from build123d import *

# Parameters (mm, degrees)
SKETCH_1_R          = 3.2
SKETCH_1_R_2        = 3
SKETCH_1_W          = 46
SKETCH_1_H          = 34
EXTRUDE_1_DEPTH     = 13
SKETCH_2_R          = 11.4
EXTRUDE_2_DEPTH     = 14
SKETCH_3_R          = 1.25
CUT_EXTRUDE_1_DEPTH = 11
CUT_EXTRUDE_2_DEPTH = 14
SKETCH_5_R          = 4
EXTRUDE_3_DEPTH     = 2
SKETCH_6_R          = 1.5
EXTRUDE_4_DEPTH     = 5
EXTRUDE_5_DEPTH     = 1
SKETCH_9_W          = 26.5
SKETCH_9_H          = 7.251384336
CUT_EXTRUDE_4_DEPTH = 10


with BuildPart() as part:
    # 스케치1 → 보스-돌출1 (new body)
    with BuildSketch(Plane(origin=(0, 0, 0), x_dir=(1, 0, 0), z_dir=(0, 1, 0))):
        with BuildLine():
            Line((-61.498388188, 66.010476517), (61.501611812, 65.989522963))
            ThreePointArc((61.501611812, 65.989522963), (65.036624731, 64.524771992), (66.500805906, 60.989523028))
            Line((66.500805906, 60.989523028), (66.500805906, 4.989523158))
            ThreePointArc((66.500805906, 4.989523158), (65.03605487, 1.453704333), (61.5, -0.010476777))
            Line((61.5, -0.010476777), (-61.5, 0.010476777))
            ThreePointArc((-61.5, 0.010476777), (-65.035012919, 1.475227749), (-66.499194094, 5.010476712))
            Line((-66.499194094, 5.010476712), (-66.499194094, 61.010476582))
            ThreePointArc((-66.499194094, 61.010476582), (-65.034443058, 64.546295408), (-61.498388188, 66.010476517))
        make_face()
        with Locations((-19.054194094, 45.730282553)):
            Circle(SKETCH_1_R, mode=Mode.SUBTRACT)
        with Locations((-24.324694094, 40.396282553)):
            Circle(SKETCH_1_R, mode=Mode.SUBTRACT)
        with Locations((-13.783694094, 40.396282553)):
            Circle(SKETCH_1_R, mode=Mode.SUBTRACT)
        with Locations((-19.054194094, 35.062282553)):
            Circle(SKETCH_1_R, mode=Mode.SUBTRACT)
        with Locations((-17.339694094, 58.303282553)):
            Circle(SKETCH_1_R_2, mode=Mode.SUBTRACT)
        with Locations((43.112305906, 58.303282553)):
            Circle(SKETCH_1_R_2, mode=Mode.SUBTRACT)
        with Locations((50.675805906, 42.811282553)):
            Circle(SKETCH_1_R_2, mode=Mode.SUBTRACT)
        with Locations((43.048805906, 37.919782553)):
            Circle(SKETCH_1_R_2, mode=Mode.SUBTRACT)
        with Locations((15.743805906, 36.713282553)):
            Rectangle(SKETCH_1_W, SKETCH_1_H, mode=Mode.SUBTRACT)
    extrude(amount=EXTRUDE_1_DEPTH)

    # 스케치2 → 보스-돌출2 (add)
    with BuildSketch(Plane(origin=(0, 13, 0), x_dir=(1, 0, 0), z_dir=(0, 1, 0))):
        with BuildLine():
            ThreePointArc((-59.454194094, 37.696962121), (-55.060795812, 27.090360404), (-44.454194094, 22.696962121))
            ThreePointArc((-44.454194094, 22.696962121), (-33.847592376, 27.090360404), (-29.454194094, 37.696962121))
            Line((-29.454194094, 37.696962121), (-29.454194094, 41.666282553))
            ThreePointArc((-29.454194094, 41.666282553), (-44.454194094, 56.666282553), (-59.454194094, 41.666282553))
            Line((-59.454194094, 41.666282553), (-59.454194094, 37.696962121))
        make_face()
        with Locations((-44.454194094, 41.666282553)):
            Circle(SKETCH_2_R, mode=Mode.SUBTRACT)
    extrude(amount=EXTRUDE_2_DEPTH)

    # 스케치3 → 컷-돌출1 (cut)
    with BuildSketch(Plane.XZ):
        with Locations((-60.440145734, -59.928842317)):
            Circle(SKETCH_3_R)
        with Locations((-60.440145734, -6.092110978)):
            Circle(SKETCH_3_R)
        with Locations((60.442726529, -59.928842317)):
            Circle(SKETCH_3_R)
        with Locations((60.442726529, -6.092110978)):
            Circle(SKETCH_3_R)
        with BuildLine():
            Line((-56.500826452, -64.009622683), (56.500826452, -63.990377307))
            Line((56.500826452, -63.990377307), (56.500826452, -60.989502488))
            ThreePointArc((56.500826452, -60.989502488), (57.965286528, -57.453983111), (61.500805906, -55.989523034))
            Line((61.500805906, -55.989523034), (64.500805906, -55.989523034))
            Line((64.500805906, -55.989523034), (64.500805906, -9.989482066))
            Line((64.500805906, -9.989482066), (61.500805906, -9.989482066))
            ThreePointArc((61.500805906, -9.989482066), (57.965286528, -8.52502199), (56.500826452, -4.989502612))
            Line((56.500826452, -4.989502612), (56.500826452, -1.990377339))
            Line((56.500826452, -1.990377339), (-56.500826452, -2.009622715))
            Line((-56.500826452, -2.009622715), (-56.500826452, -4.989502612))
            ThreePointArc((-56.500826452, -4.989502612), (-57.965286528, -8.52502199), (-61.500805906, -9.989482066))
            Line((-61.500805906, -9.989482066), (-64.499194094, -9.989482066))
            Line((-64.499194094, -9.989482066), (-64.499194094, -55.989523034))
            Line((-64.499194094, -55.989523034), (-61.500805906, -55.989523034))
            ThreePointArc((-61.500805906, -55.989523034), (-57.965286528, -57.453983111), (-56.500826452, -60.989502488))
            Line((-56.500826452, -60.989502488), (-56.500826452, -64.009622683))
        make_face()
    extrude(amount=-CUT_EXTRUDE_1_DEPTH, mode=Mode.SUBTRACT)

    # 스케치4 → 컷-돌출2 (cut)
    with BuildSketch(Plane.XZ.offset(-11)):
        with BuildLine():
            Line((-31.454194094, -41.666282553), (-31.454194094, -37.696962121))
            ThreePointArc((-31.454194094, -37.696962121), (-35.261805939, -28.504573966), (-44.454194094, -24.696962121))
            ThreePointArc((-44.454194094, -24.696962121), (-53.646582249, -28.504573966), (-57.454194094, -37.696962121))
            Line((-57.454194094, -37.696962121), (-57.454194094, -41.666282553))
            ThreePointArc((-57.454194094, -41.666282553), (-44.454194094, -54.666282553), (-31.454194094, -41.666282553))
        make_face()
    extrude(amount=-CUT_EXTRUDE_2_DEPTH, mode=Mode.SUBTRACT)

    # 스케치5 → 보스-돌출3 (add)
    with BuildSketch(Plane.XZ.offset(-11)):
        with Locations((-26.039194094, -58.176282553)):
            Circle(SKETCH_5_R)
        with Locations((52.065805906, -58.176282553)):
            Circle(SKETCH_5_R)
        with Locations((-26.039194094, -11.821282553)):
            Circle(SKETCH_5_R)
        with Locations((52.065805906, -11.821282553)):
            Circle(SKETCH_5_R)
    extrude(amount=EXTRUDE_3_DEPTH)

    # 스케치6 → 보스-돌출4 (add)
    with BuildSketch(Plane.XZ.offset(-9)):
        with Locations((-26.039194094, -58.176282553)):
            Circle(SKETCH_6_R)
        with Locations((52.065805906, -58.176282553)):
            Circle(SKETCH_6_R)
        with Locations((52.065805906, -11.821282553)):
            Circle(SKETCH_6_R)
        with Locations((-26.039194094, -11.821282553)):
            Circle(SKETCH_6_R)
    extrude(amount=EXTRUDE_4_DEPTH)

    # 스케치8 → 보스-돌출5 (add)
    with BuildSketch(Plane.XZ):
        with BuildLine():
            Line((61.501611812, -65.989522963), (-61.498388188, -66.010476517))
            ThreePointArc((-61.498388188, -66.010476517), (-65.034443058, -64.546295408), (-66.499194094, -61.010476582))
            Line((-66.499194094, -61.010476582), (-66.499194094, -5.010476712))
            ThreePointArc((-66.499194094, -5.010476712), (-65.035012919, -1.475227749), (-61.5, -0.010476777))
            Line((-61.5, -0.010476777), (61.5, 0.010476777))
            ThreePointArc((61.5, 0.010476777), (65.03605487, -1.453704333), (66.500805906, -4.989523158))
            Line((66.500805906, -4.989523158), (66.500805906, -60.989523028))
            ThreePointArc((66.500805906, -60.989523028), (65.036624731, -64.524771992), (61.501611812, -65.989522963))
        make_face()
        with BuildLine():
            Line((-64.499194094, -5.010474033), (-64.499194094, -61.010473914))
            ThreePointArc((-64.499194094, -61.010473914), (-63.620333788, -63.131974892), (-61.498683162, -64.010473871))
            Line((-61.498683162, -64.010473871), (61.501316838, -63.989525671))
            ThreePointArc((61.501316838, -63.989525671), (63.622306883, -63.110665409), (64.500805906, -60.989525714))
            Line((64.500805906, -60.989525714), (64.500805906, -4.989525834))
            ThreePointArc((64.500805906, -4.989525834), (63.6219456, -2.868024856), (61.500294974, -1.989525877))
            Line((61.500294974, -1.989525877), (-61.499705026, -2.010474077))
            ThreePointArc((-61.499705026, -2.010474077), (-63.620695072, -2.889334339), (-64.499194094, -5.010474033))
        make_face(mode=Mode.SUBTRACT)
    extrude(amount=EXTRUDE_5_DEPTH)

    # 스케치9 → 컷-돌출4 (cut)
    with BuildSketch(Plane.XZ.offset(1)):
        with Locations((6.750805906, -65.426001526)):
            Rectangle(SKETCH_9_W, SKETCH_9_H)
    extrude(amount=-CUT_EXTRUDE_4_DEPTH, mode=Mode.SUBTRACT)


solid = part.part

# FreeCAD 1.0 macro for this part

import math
import FreeCAD as App
import Part
import Sketcher

V = App.Vector
Q = App.Units.Quantity

doc = App.newDocument("Part")
body = doc.addObject("PartDesign::Body", "Body")

# Sketch on XZ plane
sketch1 = body.newObject("Sketcher::SketchObject", "Sketch")
sketch1.AttachmentSupport = (doc.getObject("XZ_Plane"), [""])
sketch1.MapMode = "FlatFace"
sketch1.addGeometry([
    Part.LineSegment(V(61.501612, -65.989523, 0), V(-61.498388, -66.010477, 0)),  # 0
    Part.ArcOfCircle(Part.Circle(V(-61.499194, -61.010477, 0), V(0, 0, 1), 5), math.radians(180), math.radians(270.009235)),  # 1
    Part.LineSegment(V(-66.499194, -61.010477, 0), V(-66.499194, -5.010477, 0)),  # 2
    Part.ArcOfCircle(Part.Circle(V(-61.499194, -5.010477, 0), V(0, 0, 1), 5), math.radians(90.009235), math.radians(180)),  # 3
    Part.LineSegment(V(-61.5, -0.010477, 0), V(61.5, 0.010477, 0)),  # 4
    Part.ArcOfCircle(Part.Circle(V(61.500806, -4.989523, 0), V(0, 0, 1), 5), math.radians(0), math.radians(90.009235)),  # 5
    Part.LineSegment(V(66.500806, -4.989523, 0), V(66.500806, -60.989523, 0)),  # 6
    Part.ArcOfCircle(Part.Circle(V(61.500806, -60.989523, 0), V(0, 0, 1), 5), math.radians(-89.990765), math.radians(0)),  # 7
    Part.Circle(V(43.048806, -37.919783, 0), V(0, 0, 1), 3),  # 8
    Part.LineSegment(V(-7.256194, -19.713283, 0), V(-7.256194, -53.713283, 0)),  # 9
    Part.LineSegment(V(-7.256194, -53.713283, 0), V(38.743806, -53.713283, 0)),  # 10
    Part.LineSegment(V(38.743806, -53.713283, 0), V(38.743806, -19.713283, 0)),  # 11
    Part.LineSegment(V(38.743806, -19.713283, 0), V(-7.256194, -19.713283, 0)),  # 12
    Part.Circle(V(-19.054194, -35.062283, 0), V(0, 0, 1), 3.2),  # 13
    Part.Circle(V(-13.783694, -40.396283, 0), V(0, 0, 1), 3.2),  # 14
    Part.Circle(V(-24.324694, -40.396283, 0), V(0, 0, 1), 3.2),  # 15
    Part.Circle(V(50.675806, -42.811283, 0), V(0, 0, 1), 3),  # 16
    Part.Circle(V(43.112306, -58.303283, 0), V(0, 0, 1), 3),  # 17
    Part.Circle(V(-19.054194, -45.730283, 0), V(0, 0, 1), 3.2),  # 18
    Part.Circle(V(-17.339694, -58.303283, 0), V(0, 0, 1), 3),  # 19
], False)
sketch1.addConstraint([
    Sketcher.Constraint("Coincident", 0, 2, 1, 2),
    Sketcher.Constraint("Tangent", 1, 1, 2, 1),
    Sketcher.Constraint("Tangent", 2, 2, 3, 2),
    Sketcher.Constraint("Coincident", 3, 1, 4, 1),
    Sketcher.Constraint("Coincident", 4, 2, 5, 2),
    Sketcher.Constraint("Tangent", 5, 1, 6, 1),
    Sketcher.Constraint("Tangent", 6, 2, 7, 2),
    Sketcher.Constraint("Coincident", 7, 1, 0, 1),
    Sketcher.Constraint("Coincident", 9, 2, 10, 1),
    Sketcher.Constraint("Coincident", 10, 2, 11, 1),
    Sketcher.Constraint("Coincident", 11, 2, 12, 1),
    Sketcher.Constraint("Coincident", 12, 2, 9, 1),
    Sketcher.Constraint("Vertical", 2),
    Sketcher.Constraint("Vertical", 6),
    Sketcher.Constraint("Vertical", 9),
    Sketcher.Constraint("Horizontal", 10),
    Sketcher.Constraint("Vertical", 11),
    Sketcher.Constraint("Horizontal", 12),
    Sketcher.Constraint("Equal", 1, 3),
    Sketcher.Constraint("Equal", 3, 5),
    Sketcher.Constraint("Equal", 5, 7),
    Sketcher.Constraint("Equal", 13, 14),
    Sketcher.Constraint("Equal", 14, 15),
    Sketcher.Constraint("Equal", 8, 16),
    Sketcher.Constraint("Equal", 16, 17),
    Sketcher.Constraint("Equal", 15, 18),
    Sketcher.Constraint("Equal", 17, 19),
    Sketcher.Constraint("Symmetric", 3, 1, 4, 2, -1, 1),
    Sketcher.Constraint("Parallel", 0, 4),
    Sketcher.Constraint("Horizontal", 14, 3, 15, 3),
    Sketcher.Constraint("Horizontal", 17, 3, 19, 3),
    Sketcher.Constraint("Vertical", 13, 3, 18, 3),
    Sketcher.Constraint("Equal", 0, 4),
    Sketcher.Constraint("Diameter", 8, Q("6 mm")),
    Sketcher.Constraint("Radius", 1, Q("5 mm")),
    Sketcher.Constraint("Diameter", 13, Q("6.4 mm")),
    Sketcher.Constraint("DistanceX", 10, 1, 10, 2, Q("46 mm")),
    Sketcher.Constraint("DistanceY", 2, 1, 2, 2, Q("56 mm")),
    Sketcher.Constraint("DistanceY", 9, 2, 9, 1, Q("34 mm")),
    Sketcher.Constraint("Distance", 0, Q("123.000002 mm")),
    Sketcher.Constraint("DistanceX", 3, 3, 5, 3, Q("123 mm")),
    Sketcher.Constraint("DistanceX", 13, 3, 16, 3, Q("69.73 mm")),
    Sketcher.Constraint("DistanceY", 19, 3, 9, 2, Q("4.59 mm")),
    Sketcher.Constraint("DistanceX", 8, 3, 7, 3, Q("18.452 mm")),
    Sketcher.Constraint("DistanceX", 1, 3, 13, 3, Q("42.445 mm")),
    Sketcher.Constraint("DistanceY", 14, 3, 13, 3, Q("5.334 mm")),
    Sketcher.Constraint("DistanceX", 15, 3, 14, 3, Q("10.541 mm")),
    Sketcher.Constraint("DistanceY", 16, 3, 14, 3, Q("2.415 mm")),
    Sketcher.Constraint("DistanceY", 17, 3, 16, 3, Q("15.492 mm")),
    Sketcher.Constraint("DistanceX", 14, 3, 17, 3, Q("56.896 mm")),
    Sketcher.Constraint("DistanceY", 18, 3, 14, 3, Q("5.334 mm")),
    Sketcher.Constraint("DistanceX", 19, 3, 14, 3, Q("3.556 mm")),
    Sketcher.Constraint("DistanceX", 18, 3, 9, 2, Q("11.798 mm")),
    Sketcher.Constraint("DistanceY", 8, 3, 13, 3, Q("2.8575 mm")),
    Sketcher.Constraint("DistanceX", 13, 3, 14, 3, Q("5.2705 mm")),
    Sketcher.Constraint("DistanceX", 0, 2, -1, 1, Q("61.498388 mm")),
    Sketcher.Constraint("DistanceY", 7, 3, 8, 3, Q("23.06974 mm")),
    Sketcher.Constraint("DistanceX", 1, 3, -1, 1, Q("61.499194 mm")),
    Sketcher.Constraint("DistanceY", 1, 3, -1, 1, Q("61.010477 mm")),
])
pad1 = body.newObject("PartDesign::Pad", "Pad")
pad1.Profile = sketch1
pad1.Length = 13
pad1.Reversed = True

# Sketch on XZ plane
sketch2 = body.newObject("Sketcher::SketchObject", "Sketch001")
sketch2.AttachmentSupport = (doc.getObject("XZ_Plane"), [""])
sketch2.MapMode = "FlatFace"
sketch2.AttachmentOffset = App.Placement(V(0, 0, -13), App.Rotation())
sketch2.addGeometry([
    Part.ArcOfCircle(Part.Circle(V(-44.454194, -37.696962, 0), V(0, 0, 1), 15), math.radians(90), math.radians(180)),  # 0
    Part.ArcOfCircle(Part.Circle(V(-44.454194, -37.696962, 0), V(0, 0, 1), 15), math.radians(0), math.radians(90)),  # 1
    Part.LineSegment(V(-29.454194, -37.696962, 0), V(-29.454194, -41.666283, 0)),  # 2
    Part.ArcOfCircle(Part.Circle(V(-44.454194, -41.666283, 0), V(0, 0, 1), 15), math.radians(180), math.radians(360)),  # 3
    Part.LineSegment(V(-59.454194, -41.666283, 0), V(-59.454194, -37.696962, 0)),  # 4
    Part.Circle(V(-44.454194, -41.666283, 0), V(0, 0, 1), 11.4),  # 5
], False)
sketch2.addConstraint([
    Sketcher.Constraint("Tangent", 0, 1, 1, 2),
    Sketcher.Constraint("Tangent", 1, 1, 2, 1),
    Sketcher.Constraint("Tangent", 2, 2, 3, 2),
    Sketcher.Constraint("Tangent", 3, 1, 4, 1),
    Sketcher.Constraint("Tangent", 4, 2, 0, 2),
    Sketcher.Constraint("Vertical", 2),
    Sketcher.Constraint("Vertical", 4),
    Sketcher.Constraint("Coincident", 5, 3, 3, 3),
    Sketcher.Constraint("Equal", 0, 1),
    Sketcher.Constraint("Vertical", 5, 3, 0, 1),
    Sketcher.Constraint("Radius", 0, Q("15 mm")),
    Sketcher.Constraint("Diameter", 5, Q("22.8 mm")),
    Sketcher.Constraint("DistanceY", 2, 2, 2, 1, Q("3.96932 mm")),
    Sketcher.Constraint("DistanceX", 0, 3, -1, 1, Q("44.454194 mm")),
    Sketcher.Constraint("DistanceY", 0, 3, -1, 1, Q("37.696962 mm")),
])
pad2 = body.newObject("PartDesign::Pad", "Pad001")
pad2.Profile = sketch2
pad2.Length = 14
pad2.Reversed = True

# Sketch on XZ plane
sketch3 = body.newObject("Sketcher::SketchObject", "Sketch002")
sketch3.AttachmentSupport = (doc.getObject("XZ_Plane"), [""])
sketch3.MapMode = "FlatFace"
sketch3.addGeometry([
    Part.Circle(V(-60.440146, -59.928842, 0), V(0, 0, 1), 1.25),  # 0
    Part.Circle(V(-60.440146, -6.092111, 0), V(0, 0, 1), 1.25),  # 1
    Part.Circle(V(60.442727, -59.928842, 0), V(0, 0, 1), 1.25),  # 2
    Part.Circle(V(60.442727, -6.092111, 0), V(0, 0, 1), 1.25),  # 3
    Part.LineSegment(V(-56.500826, -64.009623, 0), V(56.500826, -63.990377, 0)),  # 4
    Part.LineSegment(V(56.500826, -63.990377, 0), V(56.500826, -60.989502, 0)),  # 5
    Part.ArcOfCircle(Part.Circle(V(61.500806, -60.989502, 0), V(0, 0, 1), 4.999979), math.radians(90), math.radians(180)),  # 6
    Part.LineSegment(V(61.500806, -55.989523, 0), V(64.500806, -55.989523, 0)),  # 7
    Part.LineSegment(V(64.500806, -55.989523, 0), V(64.500806, -9.989482, 0)),  # 8
    Part.LineSegment(V(64.500806, -9.989482, 0), V(61.500806, -9.989482, 0)),  # 9
    Part.ArcOfCircle(Part.Circle(V(61.500806, -4.989503, 0), V(0, 0, 1), 4.999979), math.radians(180), math.radians(270)),  # 10
    Part.LineSegment(V(56.500826, -4.989503, 0), V(56.500826, -1.990377, 0)),  # 11
    Part.LineSegment(V(56.500826, -1.990377, 0), V(-56.500826, -2.009623, 0)),  # 12
    Part.LineSegment(V(-56.500826, -2.009623, 0), V(-56.500826, -4.989503, 0)),  # 13
    Part.ArcOfCircle(Part.Circle(V(-61.500806, -4.989503, 0), V(0, 0, 1), 4.999979), math.radians(-90), math.radians(0)),  # 14
    Part.LineSegment(V(-61.500806, -9.989482, 0), V(-64.499194, -9.989482, 0)),  # 15
    Part.LineSegment(V(-64.499194, -9.989482, 0), V(-64.499194, -55.989523, 0)),  # 16
    Part.LineSegment(V(-64.499194, -55.989523, 0), V(-61.500806, -55.989523, 0)),  # 17
    Part.ArcOfCircle(Part.Circle(V(-61.500806, -60.989502, 0), V(0, 0, 1), 4.999979), math.radians(0), math.radians(90)),  # 18
    Part.LineSegment(V(-56.500826, -60.989502, 0), V(-56.500826, -64.009623, 0)),  # 19
], False)
sketch3.addConstraint([
    Sketcher.Constraint("Coincident", 4, 2, 5, 1),
    Sketcher.Constraint("Tangent", 5, 2, 6, 2),
    Sketcher.Constraint("Tangent", 6, 1, 7, 1),
    Sketcher.Constraint("Coincident", 7, 2, 8, 1),
    Sketcher.Constraint("Coincident", 8, 2, 9, 1),
    Sketcher.Constraint("Tangent", 9, 2, 10, 2),
    Sketcher.Constraint("Tangent", 10, 1, 11, 1),
    Sketcher.Constraint("Coincident", 11, 2, 12, 1),
    Sketcher.Constraint("Coincident", 12, 2, 13, 1),
    Sketcher.Constraint("Tangent", 13, 2, 14, 2),
    Sketcher.Constraint("Tangent", 14, 1, 15, 1),
    Sketcher.Constraint("Coincident", 15, 2, 16, 1),
    Sketcher.Constraint("Coincident", 16, 2, 17, 1),
    Sketcher.Constraint("Tangent", 17, 2, 18, 2),
    Sketcher.Constraint("Tangent", 18, 1, 19, 1),
    Sketcher.Constraint("Coincident", 19, 2, 4, 1),
    Sketcher.Constraint("Vertical", 5),
    Sketcher.Constraint("Horizontal", 7),
    Sketcher.Constraint("Vertical", 8),
    Sketcher.Constraint("Horizontal", 9),
    Sketcher.Constraint("Vertical", 11),
    Sketcher.Constraint("Vertical", 13),
    Sketcher.Constraint("Horizontal", 15),
    Sketcher.Constraint("Vertical", 16),
    Sketcher.Constraint("Horizontal", 17),
    Sketcher.Constraint("Vertical", 19),
    Sketcher.Constraint("Equal", 0, 1),
    Sketcher.Constraint("Equal", 1, 2),
    Sketcher.Constraint("Equal", 2, 3),
    Sketcher.Constraint("Equal", 6, 10),
    Sketcher.Constraint("Equal", 10, 14),
    Sketcher.Constraint("Equal", 14, 18),
    Sketcher.Constraint("Symmetric", 10, 3, 14, 3, -2),
    Sketcher.Constraint("Symmetric", 6, 3, 18, 3, -2),
    Sketcher.Constraint("Parallel", 4, 12),
    Sketcher.Constraint("Horizontal", 0, 3, 2, 3),
    Sketcher.Constraint("Horizontal", 1, 3, 3, 3),
    Sketcher.Constraint("Vertical", 0, 3, 1, 3),
    Sketcher.Constraint("Vertical", 2, 3, 3, 3),
    Sketcher.Constraint("Vertical", 6, 3, 10, 3),
    Sketcher.Constraint("Diameter", 0, Q("2.5 mm")),
    Sketcher.Constraint("DistanceX", 7, 1, 7, 2, Q("3 mm")),
    Sketcher.Constraint("DistanceY", 6, 3, 10, 3, Q("56 mm")),
    Sketcher.Constraint("Radius", 6, Q("4.999979 mm")),
    Sketcher.Constraint("DistanceX", 15, 2, 15, 1, Q("2.998388 mm")),
    Sketcher.Constraint("DistanceY", 13, 2, 13, 1, Q("2.97988 mm")),
    Sketcher.Constraint("DistanceY", 19, 2, 19, 1, Q("3.02012 mm")),
    Sketcher.Constraint("DistanceX", 4, 2, 2, 3, Q("3.9419 mm")),
    Sketcher.Constraint("DistanceY", 5, 1, 5, 2, Q("3.000875 mm")),
    Sketcher.Constraint("DistanceY", 1, 3, -1, 1, Q("6.092111 mm")),
    Sketcher.Constraint("DistanceY", 0, 3, 1, 3, Q("53.836731 mm")),
    Sketcher.Constraint("DistanceY", 6, 3, 2, 3, Q("1.06066 mm")),
    Sketcher.Constraint("DistanceX", 0, 3, 6, 3, Q("121.940952 mm")),
    Sketcher.Constraint("DistanceX", 14, 3, 1, 3, Q("1.06066 mm")),
])
pocket1 = body.newObject("PartDesign::Pocket", "Pocket")
pocket1.Profile = sketch3
pocket1.Length = 11

# Sketch on XZ plane
sketch4 = body.newObject("Sketcher::SketchObject", "Sketch003")
sketch4.AttachmentSupport = (doc.getObject("XZ_Plane"), [""])
sketch4.MapMode = "FlatFace"
sketch4.AttachmentOffset = App.Placement(V(0, 0, -11), App.Rotation())
sketch4.addGeometry([
    Part.LineSegment(V(-31.454194, -41.666283, 0), V(-31.454194, -37.696962, 0)),  # 0
    Part.ArcOfCircle(Part.Circle(V(-44.454194, -37.696962, 0), V(0, 0, 1), 13), math.radians(0), math.radians(90)),  # 1
    Part.ArcOfCircle(Part.Circle(V(-44.454194, -37.696962, 0), V(0, 0, 1), 13), math.radians(90), math.radians(180)),  # 2
    Part.LineSegment(V(-57.454194, -37.696962, 0), V(-57.454194, -41.666283, 0)),  # 3
    Part.ArcOfCircle(Part.Circle(V(-44.454194, -41.666283, 0), V(0, 0, 1), 13), math.radians(180), math.radians(360)),  # 4
], False)
sketch4.addConstraint([
    Sketcher.Constraint("Tangent", 0, 2, 1, 1),
    Sketcher.Constraint("Tangent", 1, 2, 2, 1),
    Sketcher.Constraint("Tangent", 2, 2, 3, 1),
    Sketcher.Constraint("Tangent", 3, 2, 4, 1),
    Sketcher.Constraint("Tangent", 4, 2, 0, 1),
    Sketcher.Constraint("Vertical", 0),
    Sketcher.Constraint("Vertical", 3),
    Sketcher.Constraint("Equal", 1, 2),
    Sketcher.Constraint("Vertical", 4, 3, 1, 2),
    Sketcher.Constraint("Radius", 1, Q("13 mm")),
    Sketcher.Constraint("DistanceY", 0, 1, 0, 2, Q("3.96932 mm")),
    Sketcher.Constraint("DistanceX", 1, 3, -1, 1, Q("44.454194 mm")),
    Sketcher.Constraint("DistanceY", 1, 3, -1, 1, Q("37.696962 mm")),
])
pocket2 = body.newObject("PartDesign::Pocket", "Pocket001")
pocket2.Profile = sketch4
pocket2.Length = 14

# Sketch on XZ plane
sketch5 = body.newObject("Sketcher::SketchObject", "Sketch004")
sketch5.AttachmentSupport = (doc.getObject("XZ_Plane"), [""])
sketch5.MapMode = "FlatFace"
sketch5.AttachmentOffset = App.Placement(V(0, 0, -11), App.Rotation())
sketch5.addGeometry([
    Part.Circle(V(-26.039194, -58.176283, 0), V(0, 0, 1), 4),
    Part.Circle(V(52.065806, -58.176283, 0), V(0, 0, 1), 4),
    Part.Circle(V(-26.039194, -11.821283, 0), V(0, 0, 1), 4),
    Part.Circle(V(52.065806, -11.821283, 0), V(0, 0, 1), 4),
], False)
sketch5.addConstraint([
    Sketcher.Constraint("Equal", 0, 1),
    Sketcher.Constraint("Equal", 1, 2),
    Sketcher.Constraint("Equal", 2, 3),
    Sketcher.Constraint("Horizontal", 0, 3, 1, 3),
    Sketcher.Constraint("Horizontal", 2, 3, 3, 3),
    Sketcher.Constraint("Vertical", 0, 3, 2, 3),
    Sketcher.Constraint("Vertical", 1, 3, 3, 3),
    Sketcher.Constraint("Diameter", 0, Q("8 mm")),
    Sketcher.Constraint("DistanceX", 0, 3, 1, 3, Q("78.105 mm")),
    Sketcher.Constraint("DistanceY", 0, 3, 2, 3, Q("46.355 mm")),
    Sketcher.Constraint("DistanceX", 0, 3, -1, 1, Q("26.039194 mm")),
    Sketcher.Constraint("DistanceY", 0, 3, -1, 1, Q("58.176283 mm")),
])
pad3 = body.newObject("PartDesign::Pad", "Pad002")
pad3.Profile = sketch5
pad3.Length = 2

# Sketch on XZ plane
sketch6 = body.newObject("Sketcher::SketchObject", "Sketch005")
sketch6.AttachmentSupport = (doc.getObject("XZ_Plane"), [""])
sketch6.MapMode = "FlatFace"
sketch6.AttachmentOffset = App.Placement(V(0, 0, -9), App.Rotation())
sketch6.addGeometry([
    Part.Circle(V(-26.039194, -58.176283, 0), V(0, 0, 1), 1.5),
    Part.Circle(V(52.065806, -58.176283, 0), V(0, 0, 1), 1.5),
    Part.Circle(V(52.065806, -11.821283, 0), V(0, 0, 1), 1.5),
    Part.Circle(V(-26.039194, -11.821283, 0), V(0, 0, 1), 1.5),
], False)
sketch6.addConstraint([
    Sketcher.Constraint("Equal", 0, 1),
    Sketcher.Constraint("Equal", 1, 2),
    Sketcher.Constraint("Equal", 2, 3),
    Sketcher.Constraint("Horizontal", 0, 3, 1, 3),
    Sketcher.Constraint("Horizontal", 2, 3, 3, 3),
    Sketcher.Constraint("Vertical", 1, 3, 2, 3),
    Sketcher.Constraint("Vertical", 0, 3, 3, 3),
    Sketcher.Constraint("Diameter", 0, Q("3 mm")),
    Sketcher.Constraint("DistanceX", 0, 3, 1, 3, Q("78.105 mm")),
    Sketcher.Constraint("DistanceY", 1, 3, 2, 3, Q("46.355 mm")),
    Sketcher.Constraint("DistanceX", 0, 3, -1, 1, Q("26.039194 mm")),
    Sketcher.Constraint("DistanceY", 0, 3, -1, 1, Q("58.176283 mm")),
])
pad4 = body.newObject("PartDesign::Pad", "Pad003")
pad4.Profile = sketch6
pad4.Length = 5

# Sketch on XZ plane
sketch7 = body.newObject("Sketcher::SketchObject", "Sketch006")
sketch7.AttachmentSupport = (doc.getObject("XZ_Plane"), [""])
sketch7.MapMode = "FlatFace"
sketch7.addGeometry([
    Part.LineSegment(V(-61.498388, -66.010477, 0), V(61.501612, -65.989523, 0)),  # 0
    Part.ArcOfCircle(Part.Circle(V(61.500806, -60.989523, 0), V(0, 0, 1), 5), math.radians(-89.990765), math.radians(0)),  # 1
    Part.LineSegment(V(66.500806, -60.989523, 0), V(66.500806, -4.989523, 0)),  # 2
    Part.ArcOfCircle(Part.Circle(V(61.500806, -4.989523, 0), V(0, 0, 1), 5), math.radians(0), math.radians(90.009235)),  # 3
    Part.LineSegment(V(61.5, 0.010477, 0), V(-61.5, -0.010477, 0)),  # 4
    Part.ArcOfCircle(Part.Circle(V(-61.499194, -5.010477, 0), V(0, 0, 1), 5), math.radians(90.009235), math.radians(180)),  # 5
    Part.LineSegment(V(-66.499194, -5.010477, 0), V(-66.499194, -61.010477, 0)),  # 6
    Part.ArcOfCircle(Part.Circle(V(-61.499194, -61.010477, 0), V(0, 0, 1), 5), math.radians(180), math.radians(270.009235)),  # 7
    Part.ArcOfCircle(Part.Circle(V(-61.499194, -5.010474, 0), V(0, 0, 1), 3), math.radians(90.009758), math.radians(180)),  # 8
    Part.LineSegment(V(-61.499705, -2.010474, 0), V(61.500295, -1.989526, 0)),  # 9
    Part.ArcOfCircle(Part.Circle(V(61.500806, -4.989526, 0), V(0, 0, 1), 3), math.radians(0), math.radians(90.009758)),  # 10
    Part.LineSegment(V(64.500806, -4.989526, 0), V(64.500806, -60.989526, 0)),  # 11
    Part.ArcOfCircle(Part.Circle(V(61.500806, -60.989526, 0), V(0, 0, 1), 3), math.radians(-89.990242), math.radians(0)),  # 12
    Part.LineSegment(V(61.501317, -63.989526, 0), V(-61.498683, -64.010474, 0)),  # 13
    Part.ArcOfCircle(Part.Circle(V(-61.499194, -61.010474, 0), V(0, 0, 1), 3), math.radians(180), math.radians(270.009758)),  # 14
    Part.LineSegment(V(-64.499194, -61.010474, 0), V(-64.499194, -5.010474, 0)),  # 15
], False)
sketch7.addConstraint([
    Sketcher.Constraint("Coincident", 0, 2, 1, 1),
    Sketcher.Constraint("Tangent", 1, 2, 2, 1),
    Sketcher.Constraint("Tangent", 2, 2, 3, 1),
    Sketcher.Constraint("Coincident", 3, 2, 4, 1),
    Sketcher.Constraint("Coincident", 4, 2, 5, 1),
    Sketcher.Constraint("Tangent", 5, 2, 6, 1),
    Sketcher.Constraint("Tangent", 6, 2, 7, 1),
    Sketcher.Constraint("Coincident", 7, 2, 0, 1),
    Sketcher.Constraint("Tangent", 8, 1, 9, 1),
    Sketcher.Constraint("Tangent", 9, 2, 10, 2),
    Sketcher.Constraint("Tangent", 10, 1, 11, 1),
    Sketcher.Constraint("Tangent", 11, 2, 12, 2),
    Sketcher.Constraint("Tangent", 12, 1, 13, 1),
    Sketcher.Constraint("Tangent", 13, 2, 14, 2),
    Sketcher.Constraint("Tangent", 14, 1, 15, 1),
    Sketcher.Constraint("Tangent", 15, 2, 8, 2),
    Sketcher.Constraint("Vertical", 2),
    Sketcher.Constraint("Vertical", 6),
    Sketcher.Constraint("Vertical", 11),
    Sketcher.Constraint("Vertical", 15),
    Sketcher.Constraint("Coincident", 8, 3, 5, 3),
    Sketcher.Constraint("Coincident", 10, 3, 3, 3),
    Sketcher.Constraint("Coincident", 12, 3, 1, 3),
    Sketcher.Constraint("Coincident", 14, 3, 7, 3),
    Sketcher.Constraint("Equal", 1, 3),
    Sketcher.Constraint("Equal", 3, 5),
    Sketcher.Constraint("Equal", 5, 7),
    Sketcher.Constraint("Equal", 8, 10),
    Sketcher.Constraint("Symmetric", 3, 2, 4, 2, -1, 1),
    Sketcher.Constraint("Parallel", 0, 4),
    Sketcher.Constraint("Equal", 0, 4),
    Sketcher.Constraint("Equal", 4, 9),
    Sketcher.Constraint("Radius", 1, Q("5 mm")),
    Sketcher.Constraint("Radius", 8, Q("3 mm")),
    Sketcher.Constraint("DistanceY", 2, 1, 2, 2, Q("56 mm")),
    Sketcher.Constraint("Distance", 0, Q("123.000002 mm")),
    Sketcher.Constraint("DistanceX", -1, 1, 0, 2, Q("61.501612 mm")),
    Sketcher.Constraint("DistanceY", 8, 3, 3, 3, Q("0.020951 mm")),
    Sketcher.Constraint("DistanceX", -1, 1, 1, 3, Q("61.500806 mm")),
])
pad5 = body.newObject("PartDesign::Pad", "Pad004")
pad5.Profile = sketch7
pad5.Length = 1

# Sketch on XZ plane
sketch8 = body.newObject("Sketcher::SketchObject", "Sketch007")
sketch8.AttachmentSupport = (doc.getObject("XZ_Plane"), [""])
sketch8.MapMode = "FlatFace"
sketch8.AttachmentOffset = App.Placement(V(0, 0, 1), App.Rotation())
sketch8.addGeometry([
    Part.LineSegment(V(-6.499194, -61.800309, 0), V(-6.499194, -69.051694, 0)),
    Part.LineSegment(V(-6.499194, -69.051694, 0), V(20.000806, -69.051694, 0)),
    Part.LineSegment(V(20.000806, -69.051694, 0), V(20.000806, -61.800309, 0)),
    Part.LineSegment(V(20.000806, -61.800309, 0), V(-6.499194, -61.800309, 0)),
], False)
sketch8.addConstraint([
    Sketcher.Constraint("Coincident", 0, 2, 1, 1),
    Sketcher.Constraint("Coincident", 1, 2, 2, 1),
    Sketcher.Constraint("Coincident", 2, 2, 3, 1),
    Sketcher.Constraint("Coincident", 3, 2, 0, 1),
    Sketcher.Constraint("Vertical", 0),
    Sketcher.Constraint("Horizontal", 1),
    Sketcher.Constraint("Vertical", 2),
    Sketcher.Constraint("Horizontal", 3),
    Sketcher.Constraint("DistanceX", 1, 1, 1, 2, Q("26.5 mm")),
    Sketcher.Constraint("DistanceY", 0, 2, 0, 1, Q("7.251384 mm")),
    Sketcher.Constraint("DistanceY", 2, 2, -1, 1, Q("61.800309 mm")),
    Sketcher.Constraint("DistanceX", 0, 2, -1, 1, Q("6.499194 mm")),
])
pocket3 = body.newObject("PartDesign::Pocket", "Pocket002")
pocket3.Profile = sketch8
pocket3.Length = 10

doc.recompute()
